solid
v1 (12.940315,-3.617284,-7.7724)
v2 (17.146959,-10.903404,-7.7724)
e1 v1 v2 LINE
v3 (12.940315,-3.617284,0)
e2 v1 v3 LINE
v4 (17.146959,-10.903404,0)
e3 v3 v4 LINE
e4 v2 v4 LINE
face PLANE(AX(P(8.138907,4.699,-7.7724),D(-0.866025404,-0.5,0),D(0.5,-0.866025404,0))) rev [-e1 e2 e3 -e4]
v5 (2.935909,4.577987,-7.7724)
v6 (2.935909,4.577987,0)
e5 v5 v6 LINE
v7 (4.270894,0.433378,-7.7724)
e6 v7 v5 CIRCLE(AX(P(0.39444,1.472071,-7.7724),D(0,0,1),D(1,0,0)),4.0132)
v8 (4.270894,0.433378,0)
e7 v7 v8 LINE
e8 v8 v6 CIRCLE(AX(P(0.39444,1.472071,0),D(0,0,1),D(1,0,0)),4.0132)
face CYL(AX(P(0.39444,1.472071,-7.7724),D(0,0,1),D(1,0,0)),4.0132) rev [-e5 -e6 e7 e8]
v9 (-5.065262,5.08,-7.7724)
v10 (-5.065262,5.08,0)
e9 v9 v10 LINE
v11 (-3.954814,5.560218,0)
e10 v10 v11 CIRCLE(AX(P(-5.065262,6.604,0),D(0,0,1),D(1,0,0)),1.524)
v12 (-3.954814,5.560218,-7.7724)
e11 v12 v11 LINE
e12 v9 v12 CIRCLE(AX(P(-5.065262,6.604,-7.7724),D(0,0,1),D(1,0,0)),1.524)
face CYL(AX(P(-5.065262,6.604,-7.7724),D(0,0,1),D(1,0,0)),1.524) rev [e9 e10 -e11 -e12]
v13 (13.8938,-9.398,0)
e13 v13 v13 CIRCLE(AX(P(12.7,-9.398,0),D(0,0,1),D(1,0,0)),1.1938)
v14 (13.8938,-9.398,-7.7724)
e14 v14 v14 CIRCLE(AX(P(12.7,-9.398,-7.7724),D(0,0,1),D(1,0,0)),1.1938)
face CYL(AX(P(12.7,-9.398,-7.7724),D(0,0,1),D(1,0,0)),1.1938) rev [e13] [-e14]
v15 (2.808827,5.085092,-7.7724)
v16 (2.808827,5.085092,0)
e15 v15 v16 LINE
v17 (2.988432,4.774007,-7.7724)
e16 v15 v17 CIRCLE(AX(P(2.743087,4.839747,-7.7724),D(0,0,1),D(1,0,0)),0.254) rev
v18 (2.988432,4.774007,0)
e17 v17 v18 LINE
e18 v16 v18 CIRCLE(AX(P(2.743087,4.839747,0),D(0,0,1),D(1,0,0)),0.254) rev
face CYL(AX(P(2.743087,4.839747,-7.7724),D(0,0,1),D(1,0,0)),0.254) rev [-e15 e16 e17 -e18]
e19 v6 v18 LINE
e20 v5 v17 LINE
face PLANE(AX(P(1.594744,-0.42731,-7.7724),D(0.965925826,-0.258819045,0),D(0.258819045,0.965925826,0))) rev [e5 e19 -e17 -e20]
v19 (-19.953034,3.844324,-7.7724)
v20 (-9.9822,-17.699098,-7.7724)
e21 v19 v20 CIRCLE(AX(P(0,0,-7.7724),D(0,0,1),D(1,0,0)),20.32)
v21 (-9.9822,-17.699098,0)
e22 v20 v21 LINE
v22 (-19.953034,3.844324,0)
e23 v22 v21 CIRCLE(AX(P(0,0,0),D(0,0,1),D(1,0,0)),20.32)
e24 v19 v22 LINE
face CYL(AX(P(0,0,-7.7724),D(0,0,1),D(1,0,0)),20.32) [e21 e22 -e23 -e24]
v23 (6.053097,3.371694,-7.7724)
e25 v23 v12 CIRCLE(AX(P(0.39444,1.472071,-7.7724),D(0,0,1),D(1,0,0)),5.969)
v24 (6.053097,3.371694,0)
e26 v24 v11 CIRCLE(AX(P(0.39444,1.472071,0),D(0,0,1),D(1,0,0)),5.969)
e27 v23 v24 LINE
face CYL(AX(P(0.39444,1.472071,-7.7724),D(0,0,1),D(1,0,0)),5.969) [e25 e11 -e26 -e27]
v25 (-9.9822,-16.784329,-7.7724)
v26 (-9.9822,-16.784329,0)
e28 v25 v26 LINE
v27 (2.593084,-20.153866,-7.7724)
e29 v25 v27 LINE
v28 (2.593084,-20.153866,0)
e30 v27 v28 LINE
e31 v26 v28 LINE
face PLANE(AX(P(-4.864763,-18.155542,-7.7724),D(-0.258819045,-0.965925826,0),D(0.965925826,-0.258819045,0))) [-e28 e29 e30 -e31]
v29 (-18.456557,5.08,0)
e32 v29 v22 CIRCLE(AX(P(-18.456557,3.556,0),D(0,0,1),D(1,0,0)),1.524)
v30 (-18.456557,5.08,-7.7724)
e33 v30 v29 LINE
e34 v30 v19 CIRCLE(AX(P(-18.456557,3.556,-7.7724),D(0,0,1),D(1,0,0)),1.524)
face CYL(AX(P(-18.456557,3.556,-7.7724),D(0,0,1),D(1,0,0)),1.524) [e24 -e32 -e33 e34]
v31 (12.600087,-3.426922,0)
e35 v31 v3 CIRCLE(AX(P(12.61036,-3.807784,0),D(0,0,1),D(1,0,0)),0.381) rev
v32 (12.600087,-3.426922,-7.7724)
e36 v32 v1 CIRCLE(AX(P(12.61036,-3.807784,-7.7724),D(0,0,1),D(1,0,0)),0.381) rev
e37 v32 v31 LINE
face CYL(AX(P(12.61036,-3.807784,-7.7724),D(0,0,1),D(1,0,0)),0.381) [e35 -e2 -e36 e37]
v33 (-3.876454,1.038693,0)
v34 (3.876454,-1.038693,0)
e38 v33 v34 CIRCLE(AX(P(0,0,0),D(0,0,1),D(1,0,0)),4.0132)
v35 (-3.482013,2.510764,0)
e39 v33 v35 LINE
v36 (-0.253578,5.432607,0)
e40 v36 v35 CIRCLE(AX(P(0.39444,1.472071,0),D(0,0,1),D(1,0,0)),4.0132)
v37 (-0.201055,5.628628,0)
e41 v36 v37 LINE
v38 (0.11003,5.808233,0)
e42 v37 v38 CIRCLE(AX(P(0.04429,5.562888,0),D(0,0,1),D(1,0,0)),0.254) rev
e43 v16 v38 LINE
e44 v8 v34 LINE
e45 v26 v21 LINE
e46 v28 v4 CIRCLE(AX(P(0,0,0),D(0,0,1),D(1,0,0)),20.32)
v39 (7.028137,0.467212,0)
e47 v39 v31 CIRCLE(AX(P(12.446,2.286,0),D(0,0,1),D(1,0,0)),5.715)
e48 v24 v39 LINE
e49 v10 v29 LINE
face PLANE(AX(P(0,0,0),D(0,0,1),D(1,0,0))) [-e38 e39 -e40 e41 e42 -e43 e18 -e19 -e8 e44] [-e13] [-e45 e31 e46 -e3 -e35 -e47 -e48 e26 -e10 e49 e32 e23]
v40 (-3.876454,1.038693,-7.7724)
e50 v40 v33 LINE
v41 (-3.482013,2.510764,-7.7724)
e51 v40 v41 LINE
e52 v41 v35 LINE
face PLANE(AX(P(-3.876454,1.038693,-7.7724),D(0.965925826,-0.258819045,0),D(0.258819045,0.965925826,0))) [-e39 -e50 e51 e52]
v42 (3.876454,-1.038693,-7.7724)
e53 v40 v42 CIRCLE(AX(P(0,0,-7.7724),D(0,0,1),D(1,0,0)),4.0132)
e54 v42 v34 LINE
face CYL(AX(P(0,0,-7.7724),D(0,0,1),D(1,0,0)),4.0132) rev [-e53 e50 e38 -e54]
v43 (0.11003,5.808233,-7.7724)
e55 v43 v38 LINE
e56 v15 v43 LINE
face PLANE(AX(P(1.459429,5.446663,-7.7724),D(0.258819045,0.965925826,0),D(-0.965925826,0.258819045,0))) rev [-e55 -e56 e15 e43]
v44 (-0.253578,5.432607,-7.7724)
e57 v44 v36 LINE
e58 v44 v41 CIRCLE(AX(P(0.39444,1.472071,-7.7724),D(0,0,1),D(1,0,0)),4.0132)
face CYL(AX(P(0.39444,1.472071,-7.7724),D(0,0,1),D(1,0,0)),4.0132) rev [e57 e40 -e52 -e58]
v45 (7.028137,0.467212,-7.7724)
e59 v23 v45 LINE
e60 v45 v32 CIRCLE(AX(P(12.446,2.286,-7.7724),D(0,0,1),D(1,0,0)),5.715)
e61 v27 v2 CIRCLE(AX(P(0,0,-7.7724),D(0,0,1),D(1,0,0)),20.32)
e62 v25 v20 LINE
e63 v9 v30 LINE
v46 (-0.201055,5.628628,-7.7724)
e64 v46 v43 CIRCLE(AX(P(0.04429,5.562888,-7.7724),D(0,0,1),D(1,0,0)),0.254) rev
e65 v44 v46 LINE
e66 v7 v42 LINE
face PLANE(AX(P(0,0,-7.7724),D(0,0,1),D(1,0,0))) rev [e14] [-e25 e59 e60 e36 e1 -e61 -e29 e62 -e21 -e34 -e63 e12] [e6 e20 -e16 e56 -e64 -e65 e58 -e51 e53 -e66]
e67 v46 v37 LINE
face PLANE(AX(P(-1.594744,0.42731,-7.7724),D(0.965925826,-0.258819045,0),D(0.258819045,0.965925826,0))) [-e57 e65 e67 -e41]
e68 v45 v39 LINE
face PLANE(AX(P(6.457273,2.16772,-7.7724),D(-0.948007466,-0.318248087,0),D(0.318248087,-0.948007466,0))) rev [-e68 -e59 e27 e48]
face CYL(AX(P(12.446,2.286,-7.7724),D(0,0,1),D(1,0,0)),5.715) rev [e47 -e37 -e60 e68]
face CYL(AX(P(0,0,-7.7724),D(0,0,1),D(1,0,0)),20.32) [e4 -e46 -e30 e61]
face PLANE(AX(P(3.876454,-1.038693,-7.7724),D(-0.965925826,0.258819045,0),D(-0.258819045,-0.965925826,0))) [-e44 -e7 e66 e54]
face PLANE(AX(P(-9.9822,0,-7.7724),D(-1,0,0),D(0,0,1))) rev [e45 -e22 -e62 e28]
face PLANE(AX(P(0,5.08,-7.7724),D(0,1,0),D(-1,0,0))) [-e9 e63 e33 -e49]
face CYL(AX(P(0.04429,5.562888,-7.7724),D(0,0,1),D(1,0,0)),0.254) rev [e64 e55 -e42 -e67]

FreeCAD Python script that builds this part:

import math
import FreeCAD as App
import Part
import Sketcher

V = App.Vector
Q = App.Units.Quantity

doc = App.newDocument("Part")
body = doc.addObject("PartDesign::Body", "Body")

# Sketch on XY plane
sketch1 = body.newObject("Sketcher::SketchObject", "Sketch")
sketch1.AttachmentSupport = (doc.getObject("XY_Plane"), [""])
sketch1.MapMode = "FlatFace"
sketch1.addGeometry(Part.LineSegment(V(-5.065262, 5.08, 0), V(-18.456557, 5.08, 0)), False)
sketch1.addGeometry(Part.ArcOfCircle(Part.Circle(V(-18.456557, 3.556, 0), V(0, 0, 1), 1.524), math.radians(90), math.radians(169.09453)), False)
sketch1.addGeometry(Part.ArcOfCircle(Part.Circle(V(0, 0, 0), V(0, 0, 1), 20.32), math.radians(169.09453), math.radians(240.577226)), False)
sketch1.addGeometry(Part.LineSegment(V(-9.9822, -17.699098, 0), V(-9.9822, -16.784329, 0)), False)
sketch1.addGeometry(Part.LineSegment(V(-9.9822, -16.784329, 0), V(2.593084, -20.153866, 0)), False)
sketch1.addGeometry(Part.ArcOfCircle(Part.Circle(V(0, 0, 0), V(0, 0, 1), 20.32), math.radians(-82.668355), math.radians(-32.451454)), False)
sketch1.addGeometry(Part.LineSegment(V(17.146959, -10.903404, 0), V(12.940315, -3.617284, 0)), False)
sketch1.addGeometry(Part.ArcOfCircle(Part.Circle(V(12.61036, -3.807784, 0), V(0, 0, 1), 0.381), math.radians(30), math.radians(91.544991)), False)
sketch1.addGeometry(Part.ArcOfCircle(Part.Circle(V(12.446, 2.286, 0), V(0, 0, 1), 5.715), math.radians(-161.44299), math.radians(-88.455009)), False)
sketch1.addGeometry(Part.LineSegment(V(7.028137, 0.467212, 0), V(6.053097, 3.371694, 0)), False)
sketch1.addGeometry(Part.ArcOfCircle(Part.Circle(V(0.39444, 1.472071, 0), V(0, 0, 1), 5.969), math.radians(18.55701), math.radians(136.772537)), False)
sketch1.addGeometry(Part.ArcOfCircle(Part.Circle(V(-5.065262, 6.604, 0), V(0, 0, 1), 1.524), math.radians(-90), math.radians(-43.227463)), False)
sketch1.addGeometry(Part.Circle(V(12.7, -9.398, 0), V(0, 0, 1), 1.1938), False)
sketch1.addGeometry(Part.ArcOfCircle(Part.Circle(V(0, 0, 0), V(0, 0, 1), 4.0132), math.radians(165), math.radians(345)), False)
sketch1.addGeometry(Part.LineSegment(V(-3.876454, 1.038693, 0), V(-3.482013, 2.510764, 0)), False)
sketch1.addGeometry(Part.ArcOfCircle(Part.Circle(V(0.39444, 1.472071, 0), V(0, 0, 1), 4.0132), math.radians(99.292334), math.radians(165)), False)
sketch1.addGeometry(Part.LineSegment(V(-0.253578, 5.432607, 0), V(-0.201055, 5.628628, 0)), False)
sketch1.addGeometry(Part.ArcOfCircle(Part.Circle(V(0.04429, 5.562888, 0), V(0, 0, 1), 0.254), math.radians(75), math.radians(165)), False)
sketch1.addGeometry(Part.LineSegment(V(0.11003, 5.808233, 0), V(2.808827, 5.085092, 0)), False)
sketch1.addGeometry(Part.ArcOfCircle(Part.Circle(V(2.743087, 4.839747, 0), V(0, 0, 1), 0.254), math.radians(-15), math.radians(75)), False)
sketch1.addGeometry(Part.LineSegment(V(2.988432, 4.774007, 0), V(2.935909, 4.577987, 0)), False)
sketch1.addGeometry(Part.ArcOfCircle(Part.Circle(V(0.39444, 1.472071, 0), V(0, 0, 1), 4.0132), math.radians(-15), math.radians(50.707666)), False)
sketch1.addGeometry(Part.LineSegment(V(4.270894, 0.433378, 0), V(3.876454, -1.038693, 0)), False)
sketch1.addConstraint(Sketcher.Constraint("Tangent", 0, 2, 1, 1))
sketch1.addConstraint(Sketcher.Constraint("Tangent", 1, 2, 2, 1))
sketch1.addConstraint(Sketcher.Constraint("Coincident", 2, 2, 3, 1))
sketch1.addConstraint(Sketcher.Constraint("Coincident", 3, 2, 4, 1))
sketch1.addConstraint(Sketcher.Constraint("Coincident", 4, 2, 5, 1))
sketch1.addConstraint(Sketcher.Constraint("Coincident", 5, 2, 6, 1))
sketch1.addConstraint(Sketcher.Constraint("Tangent", 6, 2, 7, 1))
sketch1.addConstraint(Sketcher.Constraint("Tangent", 7, 2, 8, 2))
sketch1.addConstraint(Sketcher.Constraint("Tangent", 8, 1, 9, 1))
sketch1.addConstraint(Sketcher.Constraint("Tangent", 9, 2, 10, 1))
sketch1.addConstraint(Sketcher.Constraint("Tangent", 10, 2, 11, 2))
sketch1.addConstraint(Sketcher.Constraint("Tangent", 11, 1, 0, 1))
sketch1.addConstraint(Sketcher.Constraint("Tangent", 13, 1, 14, 1))
sketch1.addConstraint(Sketcher.Constraint("Tangent", 14, 2, 15, 2))
sketch1.addConstraint(Sketcher.Constraint("Coincident", 15, 1, 16, 1))
sketch1.addConstraint(Sketcher.Constraint("Tangent", 16, 2, 17, 2))
sketch1.addConstraint(Sketcher.Constraint("Tangent", 17, 1, 18, 1))
sketch1.addConstraint(Sketcher.Constraint("Tangent", 18, 2, 19, 2))
sketch1.addConstraint(Sketcher.Constraint("Tangent", 19, 1, 20, 1))
sketch1.addConstraint(Sketcher.Constraint("Coincident", 20, 2, 21, 2))
sketch1.addConstraint(Sketcher.Constraint("Tangent", 21, 1, 22, 1))
sketch1.addConstraint(Sketcher.Constraint("Tangent", 22, 2, 13, 2))
sketch1.addConstraint(Sketcher.Constraint("Horizontal", 0))
sketch1.addConstraint(Sketcher.Constraint("Vertical", 3))
sketch1.addConstraint(Sketcher.Constraint("Coincident", 2, 3, -1, 1))
sketch1.addConstraint(Sketcher.Constraint("Coincident", 5, 3, -1, 1))
sketch1.addConstraint(Sketcher.Constraint("Coincident", 13, 3, -1, 1))
sketch1.addConstraint(Sketcher.Constraint("Coincident", 15, 3, 10, 3))
sketch1.addConstraint(Sketcher.Constraint("Coincident", 21, 3, 10, 3))
sketch1.addConstraint(Sketcher.Constraint("Equal", 2, 5))
sketch1.addConstraint(Sketcher.Constraint("Equal", 1, 11))
sketch1.addConstraint(Sketcher.Constraint("Equal", 13, 15))
sketch1.addConstraint(Sketcher.Constraint("Equal", 17, 19))
sketch1.addConstraint(Sketcher.Constraint("Equal", 15, 21))
sketch1.addConstraint(Sketcher.Constraint("Perpendicular", 4, 14))
sketch1.addConstraint(Sketcher.Constraint("Parallel", 14, 16))
sketch1.addConstraint(Sketcher.Constraint("Perpendicular", 16, 18))
sketch1.addConstraint(Sketcher.Constraint("Perpendicular", 18, 20))
sketch1.addConstraint(Sketcher.Constraint("Equal", 16, 20))
sketch1.addConstraint(Sketcher.Constraint("Radius", 2, Q("0.8 in")))
sketch1.addConstraint(Sketcher.Constraint("Radius", 1, Q("0.06 in")))
sketch1.addConstraint(Sketcher.Constraint("Radius", 17, Q("0.01 in")))
sketch1.addConstraint(Sketcher.Constraint("Diameter", 12, Q("0.094 in")))
sketch1.addConstraint(Sketcher.Constraint("Angle", 4, Q("-15 deg")))
sketch1.addConstraint(Sketcher.Constraint("Angle", 6, Q("120 deg")))
sketch1.addConstraint(Sketcher.Constraint("Radius", 7, Q("0.015 in")))
sketch1.addConstraint(Sketcher.Constraint("Radius", 8, Q("0.225 in")))
sketch1.addConstraint(Sketcher.Constraint("Radius", 10, Q("0.235 in")))
sketch1.addConstraint(Sketcher.Constraint("Radius", 13, Q("0.158 in")))
sketch1.addConstraint(Sketcher.Constraint("DistanceX", -1, 1, 12, 3, Q("0.5 in")))
sketch1.addConstraint(Sketcher.Constraint("DistanceY", -1, 1, 0, 2, Q("0.2 in")))
sketch1.addConstraint(Sketcher.Constraint("Distance", 14, Q("0.06 in")))
sketch1.addConstraint(Sketcher.Constraint("Distance", 18, Q("0.11 in")))
sketch1.addConstraint(Sketcher.Constraint("DistanceX", -1, 1, 8, 3, Q("0.49 in")))
sketch1.addConstraint(Sketcher.Constraint("DistanceY", -1, 1, 8, 3, Q("0.09 in")))
sketch1.addConstraint(Sketcher.Constraint("DistanceY", 12, 3, -1, 1, Q("0.37 in")))
sketch1.addConstraint(Sketcher.Constraint("DistanceX", 2, 2, -1, 1, Q("0.393 in")))
sketch1.addConstraint(Sketcher.Constraint("DistanceY", 3, 1, 3, 2, Q("0.91477 mm")))
sketch1.addConstraint(Sketcher.Constraint("DistanceX", 7, 3, 5, 2, Q("4.536599 mm")))
sketch1.addConstraint(Sketcher.Constraint("DistanceY", 20, 2, 17, 3, Q("0.984901 mm")))
pad1 = body.newObject("PartDesign::Pad", "Pad")
pad1.Profile = sketch1
pad1.Length = Q("0.306 in")
pad1.Reversed = True

doc.recompute()
